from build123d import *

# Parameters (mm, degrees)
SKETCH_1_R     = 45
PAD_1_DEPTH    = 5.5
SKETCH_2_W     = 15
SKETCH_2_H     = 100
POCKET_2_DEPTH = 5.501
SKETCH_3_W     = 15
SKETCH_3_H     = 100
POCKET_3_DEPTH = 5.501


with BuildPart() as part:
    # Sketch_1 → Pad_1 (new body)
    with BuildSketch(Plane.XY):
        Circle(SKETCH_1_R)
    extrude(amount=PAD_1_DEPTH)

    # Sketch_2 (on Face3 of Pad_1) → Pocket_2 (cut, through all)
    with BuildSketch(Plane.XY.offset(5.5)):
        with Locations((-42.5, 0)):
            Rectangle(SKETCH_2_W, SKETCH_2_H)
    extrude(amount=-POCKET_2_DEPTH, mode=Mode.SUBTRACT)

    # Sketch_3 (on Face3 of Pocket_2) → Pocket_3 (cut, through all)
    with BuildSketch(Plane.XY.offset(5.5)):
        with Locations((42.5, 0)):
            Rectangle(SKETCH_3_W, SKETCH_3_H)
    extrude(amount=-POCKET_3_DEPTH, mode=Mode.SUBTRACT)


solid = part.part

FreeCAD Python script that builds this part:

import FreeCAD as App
import Part
import Sketcher

V = App.Vector

doc = App.newDocument("Part")
body = doc.addObject("PartDesign::Body", "Body")

sketch1 = doc.addObject("Sketcher::SketchObject", "Sketch")
body.addObject(sketch1)
sketch1.AttachmentSupport = (doc.XY_Plane, [""])
sketch1.MapMode = "FlatFace"
sketch1.addGeometry(Part.Circle(V(0, 0, 0), V(0, 0, 1), 45), False)
sketch1.addConstraint([
    Sketcher.Constraint("Coincident", 0, 3, -1, 1),
    Sketcher.Constraint("Diameter", 0, 90.0),
])
pad1 = doc.addObject("PartDesign::Pad", "Pad")
body.addObject(pad1)
pad1.Profile = sketch1
pad1.Length = 5.5

sketch2 = doc.addObject("Sketcher::SketchObject", "Sketch001")
body.addObject(sketch2)
sketch2.AttachmentSupport = (doc.XY_Plane, [""])
sketch2.MapMode = "FlatFace"
sketch2.AttachmentOffset = App.Placement(V(0, 0, 5.5), App.Rotation())
sketch2.addGeometry([
    Part.LineSegment(V(-50, 50, 0), V(-50, -50, 0)),
    Part.LineSegment(V(-50, -50, 0), V(-35, -50, 0)),
    Part.LineSegment(V(-35, -50, 0), V(-35, 50, 0)),
    Part.LineSegment(V(-35, 50, 0), V(-50, 50, 0)),
], False)
sketch2.addConstraint([
    Sketcher.Constraint("Coincident", 0, 2, 1, 1),
    Sketcher.Constraint("Coincident", 1, 2, 2, 1),
    Sketcher.Constraint("Coincident", 2, 2, 3, 1),
    Sketcher.Constraint("Coincident", 3, 2, 0, 1),
    Sketcher.Constraint("Vertical", 0),
    Sketcher.Constraint("Horizontal", 1),
    Sketcher.Constraint("Vertical", 2),
    Sketcher.Constraint("Horizontal", 3),
    Sketcher.Constraint("DistanceX", 1, 1, 1, 2, 15.0),
    Sketcher.Constraint("DistanceY", 0, 2, 0, 1, 100.0),
    Sketcher.Constraint("DistanceX", 0, 2, -1, 1, 50.0),
    Sketcher.Constraint("DistanceY", 0, 2, -1, 1, 50.0),
])
pocket1 = doc.addObject("PartDesign::Pocket", "Pocket")
body.addObject(pocket1)
pocket1.Profile = sketch2
pocket1.Type = "ThroughAll"

sketch3 = doc.addObject("Sketcher::SketchObject", "Sketch002")
body.addObject(sketch3)
sketch3.AttachmentSupport = (doc.XY_Plane, [""])
sketch3.MapMode = "FlatFace"
sketch3.AttachmentOffset = App.Placement(V(0, 0, 5.5), App.Rotation())
sketch3.addGeometry([
    Part.LineSegment(V(35, 50, 0), V(35, -50, 0)),
    Part.LineSegment(V(35, -50, 0), V(50, -50, 0)),
    Part.LineSegment(V(50, -50, 0), V(50, 50, 0)),
    Part.LineSegment(V(50, 50, 0), V(35, 50, 0)),
], False)
sketch3.addConstraint([
    Sketcher.Constraint("Coincident", 0, 2, 1, 1),
    Sketcher.Constraint("Coincident", 1, 2, 2, 1),
    Sketcher.Constraint("Coincident", 2, 2, 3, 1),
    Sketcher.Constraint("Coincident", 3, 2, 0, 1),
    Sketcher.Constraint("Vertical", 0),
    Sketcher.Constraint("Horizontal", 1),
    Sketcher.Constraint("Vertical", 2),
    Sketcher.Constraint("Horizontal", 3),
    Sketcher.Constraint("DistanceX", 1, 1, 1, 2, 15.0),
    Sketcher.Constraint("DistanceY", 0, 2, 0, 1, 100.0),
    Sketcher.Constraint("DistanceX", -1, 1, 0, 2, 35.0),
    Sketcher.Constraint("DistanceY", 0, 2, -1, 1, 50.0),
])
pocket2 = doc.addObject("PartDesign::Pocket", "Pocket001")
body.addObject(pocket2)
pocket2.Profile = sketch3
pocket2.Type = "ThroughAll"

doc.recompute()
